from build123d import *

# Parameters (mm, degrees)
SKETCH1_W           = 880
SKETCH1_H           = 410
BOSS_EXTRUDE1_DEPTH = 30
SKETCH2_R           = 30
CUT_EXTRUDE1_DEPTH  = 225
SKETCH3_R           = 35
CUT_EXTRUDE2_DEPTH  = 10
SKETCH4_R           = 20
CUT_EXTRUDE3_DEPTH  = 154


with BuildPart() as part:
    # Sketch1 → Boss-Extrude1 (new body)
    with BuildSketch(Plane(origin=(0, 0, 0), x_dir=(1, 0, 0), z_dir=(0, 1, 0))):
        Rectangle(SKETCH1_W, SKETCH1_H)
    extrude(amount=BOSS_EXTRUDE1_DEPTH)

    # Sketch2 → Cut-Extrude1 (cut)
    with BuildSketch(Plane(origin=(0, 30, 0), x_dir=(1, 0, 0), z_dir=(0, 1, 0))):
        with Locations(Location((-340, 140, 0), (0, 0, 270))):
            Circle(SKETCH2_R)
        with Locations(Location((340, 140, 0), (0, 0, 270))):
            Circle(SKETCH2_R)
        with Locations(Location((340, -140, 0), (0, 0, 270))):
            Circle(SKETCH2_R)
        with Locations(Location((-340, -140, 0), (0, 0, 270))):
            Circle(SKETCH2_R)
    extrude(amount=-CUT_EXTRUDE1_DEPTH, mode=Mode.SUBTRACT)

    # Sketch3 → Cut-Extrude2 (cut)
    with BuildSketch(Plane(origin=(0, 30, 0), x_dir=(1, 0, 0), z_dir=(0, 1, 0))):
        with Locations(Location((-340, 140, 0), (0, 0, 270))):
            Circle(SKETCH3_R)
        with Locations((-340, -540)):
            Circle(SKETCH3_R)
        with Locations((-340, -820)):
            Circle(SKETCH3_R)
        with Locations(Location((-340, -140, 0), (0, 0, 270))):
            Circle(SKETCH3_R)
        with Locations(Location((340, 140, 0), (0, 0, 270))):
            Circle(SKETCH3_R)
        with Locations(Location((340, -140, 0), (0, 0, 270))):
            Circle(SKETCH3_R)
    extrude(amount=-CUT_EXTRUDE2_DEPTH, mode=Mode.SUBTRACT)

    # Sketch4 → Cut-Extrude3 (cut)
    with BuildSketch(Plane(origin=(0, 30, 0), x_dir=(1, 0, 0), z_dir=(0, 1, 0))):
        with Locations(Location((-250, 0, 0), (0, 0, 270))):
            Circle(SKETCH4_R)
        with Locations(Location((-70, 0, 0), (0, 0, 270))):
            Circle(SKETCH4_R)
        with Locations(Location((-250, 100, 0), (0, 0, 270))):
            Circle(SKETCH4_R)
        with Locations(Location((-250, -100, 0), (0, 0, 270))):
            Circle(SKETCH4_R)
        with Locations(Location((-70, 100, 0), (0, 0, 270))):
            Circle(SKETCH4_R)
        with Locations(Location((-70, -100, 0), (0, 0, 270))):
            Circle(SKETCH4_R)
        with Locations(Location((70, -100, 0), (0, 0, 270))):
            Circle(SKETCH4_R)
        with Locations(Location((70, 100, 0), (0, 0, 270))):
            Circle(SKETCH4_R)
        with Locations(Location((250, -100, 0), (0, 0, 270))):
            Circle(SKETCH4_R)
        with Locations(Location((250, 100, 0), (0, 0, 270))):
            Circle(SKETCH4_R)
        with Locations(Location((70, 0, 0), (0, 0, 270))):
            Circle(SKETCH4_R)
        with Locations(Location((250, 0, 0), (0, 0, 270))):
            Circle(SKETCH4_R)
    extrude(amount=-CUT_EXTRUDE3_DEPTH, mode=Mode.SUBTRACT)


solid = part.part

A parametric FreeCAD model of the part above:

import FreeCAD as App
import Part
import Sketcher

V = App.Vector


def add_polygon(sketch, points):
    """Adds a closed chain of lines whose ends are joined by coincident constraints."""
    first, n = sketch.GeometryCount, len(points)
    for a, b in zip(points, points[1:] + points[:1]):
        sketch.addGeometry(Part.LineSegment(App.Vector(*a, 0), App.Vector(*b, 0)), False)
    for i in range(n):
        sketch.addConstraint(Sketcher.Constraint("Coincident", first + i, 2, first + (i + 1) % n, 1))

doc = App.newDocument("Part")
body = doc.addObject("PartDesign::Body", "Body")

# Sketch on XZ plane
sketch1 = body.newObject("Sketcher::SketchObject", "Sketch")
sketch1.AttachmentSupport = (doc.getObject("XZ_Plane"), [""])
sketch1.MapMode = "FlatFace"
add_polygon(sketch1, [(-440, -205), (-440, 205), (440, 205), (440, -205)])  # lines 0-3
sketch1.addConstraint([
    Sketcher.Constraint("Vertical", 0),
    Sketcher.Constraint("Horizontal", 1),
    Sketcher.Constraint("Vertical", 2),
    Sketcher.Constraint("Horizontal", 3),
    Sketcher.Constraint("Symmetric", 0, 2, 2, 2, -1, 1),
    Sketcher.Constraint("DistanceX", 1, 1, 1, 2, 880.0),
    Sketcher.Constraint("DistanceY", 0, 1, 0, 2, 410.0),
])
pad1 = body.newObject("PartDesign::Pad", "Pad")
pad1.Profile = sketch1
pad1.Length = 30
pad1.Reversed = True

# Sketch on XZ plane
sketch2 = body.newObject("Sketcher::SketchObject", "Sketch001")
sketch2.AttachmentSupport = (doc.getObject("XZ_Plane"), [""])
sketch2.MapMode = "FlatFace"
sketch2.AttachmentOffset = App.Placement(V(0, 0, -30), App.Rotation())
sketch2.addGeometry([
    Part.Circle(V(-340, -140, 0), V(0, 0, 1), 30),
    Part.Circle(V(340, -140, 0), V(0, 0, 1), 30),
    Part.Circle(V(340, 140, 0), V(0, 0, 1), 30),
    Part.Circle(V(-340, 140, 0), V(0, 0, 1), 30),
], False)
sketch2.addConstraint([
    Sketcher.Constraint("Equal", 0, 1),
    Sketcher.Constraint("Equal", 1, 2),
    Sketcher.Constraint("Equal", 2, 3),
    Sketcher.Constraint("Symmetric", 0, 3, 2, 3, -1, 1),
    Sketcher.Constraint("Symmetric", 1, 3, 3, 3, -1, 1),
    Sketcher.Constraint("Symmetric", 0, 3, 1, 3, -2),
    Sketcher.Constraint("Diameter", 0, 60.0),
    Sketcher.Constraint("DistanceX", 0, 3, -1, 1, 340.0),
    Sketcher.Constraint("DistanceY", 0, 3, -1, 1, 140.0),
])
pocket1 = body.newObject("PartDesign::Pocket", "Pocket")
pocket1.Profile = sketch2
pocket1.Length = 225
pocket1.Reversed = True

# Sketch on XZ plane
sketch3 = body.newObject("Sketcher::SketchObject", "Sketch002")
sketch3.AttachmentSupport = (doc.getObject("XZ_Plane"), [""])
sketch3.MapMode = "FlatFace"
sketch3.AttachmentOffset = App.Placement(V(0, 0, -30), App.Rotation())
sketch3.addGeometry([
    Part.Circle(V(-340, -140, 0), V(0, 0, 1), 35),  # 0
    Part.Circle(V(-340, 540, 0), V(0, 0, 1), 35),  # 1
    Part.Circle(V(-340, 820, 0), V(0, 0, 1), 35),  # 2
    Part.Circle(V(-340, 140, 0), V(0, 0, 1), 35),  # 3
    Part.Circle(V(340, -140, 0), V(0, 0, 1), 35),  # 4
    Part.Circle(V(340, 140, 0), V(0, 0, 1), 35),  # 5
], False)
sketch3.addConstraint([
    Sketcher.Constraint("Equal", 0, 1),
    Sketcher.Constraint("Equal", 1, 2),
    Sketcher.Constraint("Equal", 2, 3),
    Sketcher.Constraint("Equal", 3, 4),
    Sketcher.Constraint("Equal", 4, 5),
    Sketcher.Constraint("Symmetric", 3, 3, 4, 3, -1, 1),
    Sketcher.Constraint("Symmetric", 0, 3, 5, 3, -1, 1),
    Sketcher.Constraint("Symmetric", 0, 3, 4, 3, -2),
    Sketcher.Constraint("Vertical", 0, 3, 1, 3),
    Sketcher.Constraint("Vertical", 1, 3, 2, 3),
    Sketcher.Constraint("Diameter", 0, 70.0),
    Sketcher.Constraint("DistanceX", 0, 3, -1, 1, 340.0),
    Sketcher.Constraint("DistanceY", 0, 3, -1, 1, 140.0),
    Sketcher.Constraint("DistanceY", -1, 1, 1, 3, 540.0),
    Sketcher.Constraint("DistanceY", -1, 1, 2, 3, 820.0),
])
pocket2 = body.newObject("PartDesign::Pocket", "Pocket001")
pocket2.Profile = sketch3
pocket2.Length = 10
pocket2.Reversed = True

# Sketch on XZ plane
sketch4 = body.newObject("Sketcher::SketchObject", "Sketch003")
sketch4.AttachmentSupport = (doc.getObject("XZ_Plane"), [""])
sketch4.MapMode = "FlatFace"
sketch4.AttachmentOffset = App.Placement(V(0, 0, -30), App.Rotation())
sketch4.addGeometry([
    Part.Circle(V(-250, 0, 0), V(0, 0, 1), 20),  # 0
    Part.Circle(V(-70, 0, 0), V(0, 0, 1), 20),  # 1
    Part.Circle(V(-250, -100, 0), V(0, 0, 1), 20),  # 2
    Part.Circle(V(-250, 100, 0), V(0, 0, 1), 20),  # 3
    Part.Circle(V(-70, -100, 0), V(0, 0, 1), 20),  # 4
    Part.Circle(V(-70, 100, 0), V(0, 0, 1), 20),  # 5
    Part.Circle(V(70, 100, 0), V(0, 0, 1), 20),  # 6
    Part.Circle(V(70, -100, 0), V(0, 0, 1), 20),  # 7
    Part.Circle(V(250, 100, 0), V(0, 0, 1), 20),  # 8
    Part.Circle(V(250, -100, 0), V(0, 0, 1), 20),  # 9
    Part.Circle(V(70, 0, 0), V(0, 0, 1), 20),  # 10
    Part.Circle(V(250, 0, 0), V(0, 0, 1), 20),  # 11
], False)
sketch4.addConstraint([
    Sketcher.Constraint("Equal", 0, 1),
    Sketcher.Constraint("Equal", 1, 2),
    Sketcher.Constraint("Equal", 2, 3),
    Sketcher.Constraint("Equal", 3, 4),
    Sketcher.Constraint("Equal", 4, 5),
    Sketcher.Constraint("Equal", 5, 6),
    Sketcher.Constraint("Equal", 6, 7),
    Sketcher.Constraint("Equal", 7, 8),
    Sketcher.Constraint("Equal", 8, 9),
    Sketcher.Constraint("Equal", 9, 10),
    Sketcher.Constraint("Equal", 10, 11),
    Sketcher.Constraint("Symmetric", 4, 3, 6, 3, -1, 1),
    Sketcher.Constraint("Symmetric", 5, 3, 7, 3, -1, 1),
    Sketcher.Constraint("Symmetric", 2, 3, 8, 3, -1, 1),
    Sketcher.Constraint("Symmetric", 3, 3, 9, 3, -1, 1),
    Sketcher.Constraint("Symmetric", 1, 3, 10, 3, -1, 1),
    Sketcher.Constraint("Symmetric", 0, 3, 11, 3, -1, 1),
    Sketcher.Constraint("Symmetric", 5, 3, 6, 3, -2),
    Sketcher.Constraint("Symmetric", 3, 3, 8, 3, -2),
    Sketcher.Constraint("PointOnObject", 0, 3, -1),
    Sketcher.Constraint("PointOnObject", 1, 3, -1),
    Sketcher.Constraint("Horizontal", 2, 3, 4, 3),
    Sketcher.Constraint("Vertical", 0, 3, 2, 3),
    Sketcher.Constraint("Vertical", 1, 3, 4, 3),
    Sketcher.Constraint("Diameter", 0, 40.0),
    Sketcher.Constraint("DistanceX", 0, 3, -1, 1, 250.0),
    Sketcher.Constraint("DistanceX", 1, 3, -1, 1, 70.0),
    Sketcher.Constraint("DistanceY", 2, 3, -1, 1, 100.0),
])
pocket3 = body.newObject("PartDesign::Pocket", "Pocket002")
pocket3.Profile = sketch4
pocket3.Length = 154
pocket3.Reversed = True

doc.recompute()
